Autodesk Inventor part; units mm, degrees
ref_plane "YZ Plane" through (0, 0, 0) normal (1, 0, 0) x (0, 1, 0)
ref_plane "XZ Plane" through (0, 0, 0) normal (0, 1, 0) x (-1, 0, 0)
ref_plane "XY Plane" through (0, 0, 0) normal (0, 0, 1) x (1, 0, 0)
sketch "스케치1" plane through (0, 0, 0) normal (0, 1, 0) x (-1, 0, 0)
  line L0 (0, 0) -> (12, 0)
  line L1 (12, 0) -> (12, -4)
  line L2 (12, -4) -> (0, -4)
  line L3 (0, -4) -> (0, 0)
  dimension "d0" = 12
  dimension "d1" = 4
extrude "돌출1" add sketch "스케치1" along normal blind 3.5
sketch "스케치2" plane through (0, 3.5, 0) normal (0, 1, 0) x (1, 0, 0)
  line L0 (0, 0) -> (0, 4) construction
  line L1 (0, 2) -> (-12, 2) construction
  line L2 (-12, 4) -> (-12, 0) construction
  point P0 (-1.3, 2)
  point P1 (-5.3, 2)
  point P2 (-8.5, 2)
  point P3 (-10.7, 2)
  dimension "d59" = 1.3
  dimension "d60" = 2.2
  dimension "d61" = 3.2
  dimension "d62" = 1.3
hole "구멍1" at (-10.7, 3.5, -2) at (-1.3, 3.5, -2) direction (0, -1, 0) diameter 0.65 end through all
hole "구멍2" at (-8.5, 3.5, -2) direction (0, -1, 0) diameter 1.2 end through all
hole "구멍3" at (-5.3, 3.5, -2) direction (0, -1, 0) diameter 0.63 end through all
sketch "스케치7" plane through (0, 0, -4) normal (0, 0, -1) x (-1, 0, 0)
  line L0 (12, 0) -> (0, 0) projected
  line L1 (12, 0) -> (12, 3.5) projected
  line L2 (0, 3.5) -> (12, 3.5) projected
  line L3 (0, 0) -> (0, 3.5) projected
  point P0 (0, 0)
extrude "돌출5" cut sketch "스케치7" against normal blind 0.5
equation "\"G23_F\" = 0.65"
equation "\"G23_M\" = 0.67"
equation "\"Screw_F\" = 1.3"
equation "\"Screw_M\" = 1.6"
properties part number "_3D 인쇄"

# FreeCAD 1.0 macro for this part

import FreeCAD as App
import Part
import Sketcher

V = App.Vector
Q = App.Units.Quantity


def add_polygon(sketch, points):
    """Adds a closed chain of lines whose ends are joined by coincident constraints."""
    first, n = sketch.GeometryCount, len(points)
    for a, b in zip(points, points[1:] + points[:1]):
        sketch.addGeometry(Part.LineSegment(App.Vector(*a, 0), App.Vector(*b, 0)), False)
    for i in range(n):
        sketch.addConstraint(Sketcher.Constraint("Coincident", first + i, 2, first + (i + 1) % n, 1))

doc = App.newDocument("Part")
body = doc.addObject("PartDesign::Body", "Body")

# Sketch on XZ plane
sketch1 = doc.addObject("Sketcher::SketchObject", "Sketch")
body.addObject(sketch1)
sketch1.AttachmentSupport = (doc.XZ_Plane, [""])
sketch1.MapMode = "FlatFace"
add_polygon(sketch1, [(-12, 0), (0, 0), (0, -4), (-12, -4)])  # lines 0-3
sketch1.addConstraint(Sketcher.Constraint("Horizontal", 0))
sketch1.addConstraint(Sketcher.Constraint("Vertical", 1))
sketch1.addConstraint(Sketcher.Constraint("Horizontal", 2))
sketch1.addConstraint(Sketcher.Constraint("Vertical", 3))
sketch1.addConstraint(Sketcher.Constraint("Coincident", 0, 2, -1, 1))
sketch1.addConstraint(Sketcher.Constraint("DistanceX", 0, 1, 0, 2, Q("12 mm")))
sketch1.addConstraint(Sketcher.Constraint("DistanceY", 1, 2, 1, 1, Q("4 mm")))
pad1 = doc.addObject("PartDesign::Pad", "Pad")
body.addObject(pad1)
pad1.Profile = sketch1
pad1.Length = 3.5
pad1.Reversed = True

# Sketch on XZ plane
sketch2 = doc.addObject("Sketcher::SketchObject", "Sketch001")
body.addObject(sketch2)
sketch2.AttachmentSupport = (doc.XZ_Plane, [""])
sketch2.MapMode = "FlatFace"
sketch2.AttachmentOffset = App.Placement(V(0, 0, -3.5), App.Rotation())
sketch2.addGeometry(Part.Circle(V(-10.7, -2, 0), V(0, 0, 1), 0.325), False)
sketch2.addGeometry(Part.Circle(V(-1.3, -2, 0), V(0, 0, 1), 0.325), False)
sketch2.addConstraint(Sketcher.Constraint("Equal", 0, 1))
sketch2.addConstraint(Sketcher.Constraint("Horizontal", 0, 3, 1, 3))
sketch2.addConstraint(Sketcher.Constraint("Diameter", 0, Q("0.65 mm")))
sketch2.addConstraint(Sketcher.Constraint("DistanceY", 0, 3, -1, 1, Q("2 mm")))
sketch2.addConstraint(Sketcher.Constraint("DistanceX", 0, 3, -1, 1, Q("10.7 mm")))
sketch2.addConstraint(Sketcher.Constraint("DistanceX", 1, 3, -1, 1, Q("1.3 mm")))
doc.recompute()
hole = doc.addObject("PartDesign::Hole", "Hole")
body.addObject(hole)
hole.Profile = sketch2
hole.ThreadType = "None"
hole.Diameter = 0.65
hole.DepthType = "ThroughAll"
hole.Reversed = True

# Sketch on XZ plane
sketch3 = doc.addObject("Sketcher::SketchObject", "Sketch002")
body.addObject(sketch3)
sketch3.AttachmentSupport = (doc.XZ_Plane, [""])
sketch3.MapMode = "FlatFace"
sketch3.AttachmentOffset = App.Placement(V(0, 0, -3.5), App.Rotation())
sketch3.addGeometry(Part.Circle(V(-8.5, -2, 0), V(0, 0, 1), 0.6), False)
sketch3.addConstraint(Sketcher.Constraint("Diameter", 0, Q("1.2 mm")))
sketch3.addConstraint(Sketcher.Constraint("DistanceY", 0, 3, -1, 1, Q("2 mm")))
sketch3.addConstraint(Sketcher.Constraint("DistanceX", 0, 3, -1, 1, Q("8.5 mm")))
doc.recompute()
hole2 = doc.addObject("PartDesign::Hole", "Hole001")
body.addObject(hole2)
hole2.Profile = sketch3
hole2.ThreadType = "None"
hole2.Diameter = 1.2
hole2.DepthType = "ThroughAll"
hole2.Reversed = True

# Sketch on XZ plane
sketch4 = doc.addObject("Sketcher::SketchObject", "Sketch003")
body.addObject(sketch4)
sketch4.AttachmentSupport = (doc.XZ_Plane, [""])
sketch4.MapMode = "FlatFace"
sketch4.AttachmentOffset = App.Placement(V(0, 0, -3.5), App.Rotation())
sketch4.addGeometry(Part.Circle(V(-5.3, -2, 0), V(0, 0, 1), 0.315), False)
sketch4.addConstraint(Sketcher.Constraint("Diameter", 0, Q("0.63 mm")))
sketch4.addConstraint(Sketcher.Constraint("DistanceY", 0, 3, -1, 1, Q("2 mm")))
sketch4.addConstraint(Sketcher.Constraint("DistanceX", 0, 3, -1, 1, Q("5.3 mm")))
doc.recompute()
hole3 = doc.addObject("PartDesign::Hole", "Hole002")
body.addObject(hole3)
hole3.Profile = sketch4
hole3.ThreadType = "None"
hole3.Diameter = 0.63
hole3.DepthType = "ThroughAll"
hole3.Reversed = True

# Sketch on XY plane
sketch5 = doc.addObject("Sketcher::SketchObject", "Sketch004")
body.addObject(sketch5)
sketch5.AttachmentSupport = (doc.XY_Plane, [""])
sketch5.MapMode = "FlatFace"
sketch5.AttachmentOffset = App.Placement(V(0, 0, -4), App.Rotation())
add_polygon(sketch5, [(0, 0), (-12, 0), (-12, 3.5), (0, 3.5)])  # lines 0-3
sketch5.addConstraint(Sketcher.Constraint("Horizontal", 0))
sketch5.addConstraint(Sketcher.Constraint("Vertical", 1))
sketch5.addConstraint(Sketcher.Constraint("Horizontal", 2))
sketch5.addConstraint(Sketcher.Constraint("Vertical", 3))
sketch5.addConstraint(Sketcher.Constraint("Coincident", 3, 2, -1, 1))
sketch5.addConstraint(Sketcher.Constraint("DistanceX", 0, 2, 0, 1, Q("12 mm")))
sketch5.addConstraint(Sketcher.Constraint("DistanceY", 1, 1, 1, 2, Q("3.5 mm")))
pocket1 = doc.addObject("PartDesign::Pocket", "Pocket")
body.addObject(pocket1)
pocket1.Profile = sketch5
pocket1.Length = 0.5
pocket1.Reversed = True

doc.recompute()
